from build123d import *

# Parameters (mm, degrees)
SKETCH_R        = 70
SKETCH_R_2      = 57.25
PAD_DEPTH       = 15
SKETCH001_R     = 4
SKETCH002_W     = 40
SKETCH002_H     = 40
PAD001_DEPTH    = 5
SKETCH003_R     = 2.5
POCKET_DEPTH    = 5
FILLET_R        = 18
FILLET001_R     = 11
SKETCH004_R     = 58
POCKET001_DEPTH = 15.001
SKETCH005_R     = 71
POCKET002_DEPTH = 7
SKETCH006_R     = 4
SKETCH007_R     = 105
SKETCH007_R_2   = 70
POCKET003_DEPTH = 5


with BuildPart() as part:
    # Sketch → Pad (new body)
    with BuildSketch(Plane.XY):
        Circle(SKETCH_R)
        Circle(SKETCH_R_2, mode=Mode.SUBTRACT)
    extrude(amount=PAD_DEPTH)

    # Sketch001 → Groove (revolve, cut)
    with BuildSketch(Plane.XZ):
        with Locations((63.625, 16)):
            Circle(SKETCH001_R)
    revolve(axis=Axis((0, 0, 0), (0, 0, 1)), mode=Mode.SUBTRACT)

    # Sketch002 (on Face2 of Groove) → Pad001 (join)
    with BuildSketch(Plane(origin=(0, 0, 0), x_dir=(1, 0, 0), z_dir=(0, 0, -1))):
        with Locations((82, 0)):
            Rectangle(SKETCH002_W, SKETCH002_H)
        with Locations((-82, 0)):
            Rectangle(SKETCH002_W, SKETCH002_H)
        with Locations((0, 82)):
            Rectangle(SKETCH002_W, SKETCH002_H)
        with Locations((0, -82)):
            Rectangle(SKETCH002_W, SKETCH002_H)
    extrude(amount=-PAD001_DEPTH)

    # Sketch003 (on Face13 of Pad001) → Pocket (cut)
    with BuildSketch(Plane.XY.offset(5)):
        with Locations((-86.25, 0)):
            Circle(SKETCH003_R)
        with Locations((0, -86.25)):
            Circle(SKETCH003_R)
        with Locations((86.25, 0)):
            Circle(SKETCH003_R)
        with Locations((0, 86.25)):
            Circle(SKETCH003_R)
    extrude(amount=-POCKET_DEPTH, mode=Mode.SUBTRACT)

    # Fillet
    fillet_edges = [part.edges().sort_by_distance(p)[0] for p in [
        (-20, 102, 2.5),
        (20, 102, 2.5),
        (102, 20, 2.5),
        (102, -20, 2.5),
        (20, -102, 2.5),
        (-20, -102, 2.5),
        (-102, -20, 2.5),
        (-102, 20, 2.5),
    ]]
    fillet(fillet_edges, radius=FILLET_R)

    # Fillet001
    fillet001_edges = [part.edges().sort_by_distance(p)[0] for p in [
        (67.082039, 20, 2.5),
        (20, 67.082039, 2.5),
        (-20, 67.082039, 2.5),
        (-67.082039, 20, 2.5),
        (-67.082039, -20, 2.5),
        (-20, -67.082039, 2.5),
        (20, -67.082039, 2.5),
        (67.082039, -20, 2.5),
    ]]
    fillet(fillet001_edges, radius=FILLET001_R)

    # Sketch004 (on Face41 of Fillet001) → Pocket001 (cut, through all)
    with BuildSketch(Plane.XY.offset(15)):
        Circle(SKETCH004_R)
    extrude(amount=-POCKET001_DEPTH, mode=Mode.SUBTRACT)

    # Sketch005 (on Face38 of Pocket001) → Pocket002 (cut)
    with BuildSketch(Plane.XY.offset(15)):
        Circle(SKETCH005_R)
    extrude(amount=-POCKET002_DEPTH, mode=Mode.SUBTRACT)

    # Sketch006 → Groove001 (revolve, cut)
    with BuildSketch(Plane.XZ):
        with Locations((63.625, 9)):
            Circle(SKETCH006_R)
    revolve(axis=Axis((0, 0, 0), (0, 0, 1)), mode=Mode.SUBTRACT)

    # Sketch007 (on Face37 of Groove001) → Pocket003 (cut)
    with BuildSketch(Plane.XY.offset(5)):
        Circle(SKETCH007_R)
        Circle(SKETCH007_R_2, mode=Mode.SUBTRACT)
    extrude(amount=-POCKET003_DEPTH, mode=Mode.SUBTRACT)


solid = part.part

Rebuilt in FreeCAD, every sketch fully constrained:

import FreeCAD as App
import Part
import Sketcher
from FreeCAD import Vector
Q = App.Units.Quantity


def edges_at(feature, points):
    """Names of the edges that pass closest to the given points."""
    edges = feature.Shape.Edges
    near = lambda p: min(range(len(edges)), key=lambda i: edges[i].distToShape(Part.Vertex(*p))[0])
    return sorted({f"Edge{near(p) + 1}" for p in points})

doc = App.newDocument("Part")
body = doc.addObject("PartDesign::Body", "Body")

sketch1 = body.newObject("Sketcher::SketchObject", "Sketch")
sketch1.AttachmentSupport = (doc.getObject("XY_Plane"), [""])
sketch1.MapMode = "FlatFace"
sketch1.addGeometry([
    Part.Circle(Vector(0, 0, 0), Vector(0, 0, 1), 70),
    Part.Circle(Vector(0, 0, 0), Vector(0, 0, 1), 57.25),
], False)
sketch1.addConstraint([
    Sketcher.Constraint("Coincident", 0, 3, -1, 1),
    Sketcher.Constraint("Coincident", 1, 3, -1, 1),
    Sketcher.Constraint("Diameter", 0, Q("140 mm")),
    Sketcher.Constraint("Diameter", 1, Q("114.5 mm")),
])
pad1 = body.newObject("PartDesign::Pad", "Pad")
pad1.Profile = sketch1
pad1.Length = 15

sketch2 = body.newObject("Sketcher::SketchObject", "Sketch001")
sketch2.AttachmentSupport = (doc.getObject("XZ_Plane"), [""])
sketch2.MapMode = "FlatFace"
sketch2.addGeometry(Part.Circle(Vector(63.625, 16, 0), Vector(0, 0, 1), 4), False)
sketch2.addConstraint([
    Sketcher.Constraint("Diameter", 0, Q("8 mm")),
    Sketcher.Constraint("DistanceY", -1, 1, 0, 3, Q("16 mm")),
    Sketcher.Constraint("DistanceX", -1, 1, 0, 3, Q("63.625 mm")),
])
groove = body.newObject("PartDesign::Groove", "Groove")
groove.Profile = sketch2
groove.ReferenceAxis = (sketch2, ["V_Axis"])
groove.Angle = 360

sketch3 = body.newObject("Sketcher::SketchObject", "Sketch002")
sketch3.AttachmentSupport = (doc.getObject("XY_Plane"), [""])
sketch3.MapMode = "FlatFace"
sketch3.addGeometry([
    Part.LineSegment(Vector(62, -20, 0), Vector(62, 20, 0)),
    Part.LineSegment(Vector(62, 20, 0), Vector(102, 20, 0)),
    Part.LineSegment(Vector(102, 20, 0), Vector(102, -20, 0)),
    Part.LineSegment(Vector(102, -20, 0), Vector(62, -20, 0)),
    Part.LineSegment(Vector(-102, -20, 0), Vector(-102, 20, 0)),
    Part.LineSegment(Vector(-102, 20, 0), Vector(-62, 20, 0)),
    Part.LineSegment(Vector(-62, 20, 0), Vector(-62, -20, 0)),
    Part.LineSegment(Vector(-62, -20, 0), Vector(-102, -20, 0)),
    Part.LineSegment(Vector(-20, -102, 0), Vector(-20, -62, 0)),
    Part.LineSegment(Vector(-20, -62, 0), Vector(20, -62, 0)),
    Part.LineSegment(Vector(20, -62, 0), Vector(20, -102, 0)),
    Part.LineSegment(Vector(20, -102, 0), Vector(-20, -102, 0)),
    Part.LineSegment(Vector(-20, 62, 0), Vector(-20, 102, 0)),
    Part.LineSegment(Vector(-20, 102, 0), Vector(20, 102, 0)),
    Part.LineSegment(Vector(20, 102, 0), Vector(20, 62, 0)),
    Part.LineSegment(Vector(20, 62, 0), Vector(-20, 62, 0)),
], False)
sketch3.addConstraint([
    Sketcher.Constraint("Coincident", 0, 2, 1, 1),
    Sketcher.Constraint("Coincident", 1, 2, 2, 1),
    Sketcher.Constraint("Coincident", 2, 2, 3, 1),
    Sketcher.Constraint("Coincident", 3, 2, 0, 1),
    Sketcher.Constraint("Coincident", 4, 2, 5, 1),
    Sketcher.Constraint("Coincident", 5, 2, 6, 1),
    Sketcher.Constraint("Coincident", 6, 2, 7, 1),
    Sketcher.Constraint("Coincident", 7, 2, 4, 1),
    Sketcher.Constraint("Coincident", 8, 2, 9, 1),
    Sketcher.Constraint("Coincident", 9, 2, 10, 1),
    Sketcher.Constraint("Coincident", 10, 2, 11, 1),
    Sketcher.Constraint("Coincident", 11, 2, 8, 1),
    Sketcher.Constraint("Coincident", 12, 2, 13, 1),
    Sketcher.Constraint("Coincident", 13, 2, 14, 1),
    Sketcher.Constraint("Coincident", 14, 2, 15, 1),
    Sketcher.Constraint("Coincident", 15, 2, 12, 1),
    Sketcher.Constraint("Vertical", 0),
    Sketcher.Constraint("Horizontal", 1),
    Sketcher.Constraint("Vertical", 2),
    Sketcher.Constraint("Horizontal", 3),
    Sketcher.Constraint("Vertical", 4),
    Sketcher.Constraint("Horizontal", 5),
    Sketcher.Constraint("Vertical", 6),
    Sketcher.Constraint("Horizontal", 7),
    Sketcher.Constraint("Vertical", 8),
    Sketcher.Constraint("Horizontal", 9),
    Sketcher.Constraint("Vertical", 10),
    Sketcher.Constraint("Horizontal", 11),
    Sketcher.Constraint("Vertical", 12),
    Sketcher.Constraint("Horizontal", 13),
    Sketcher.Constraint("Vertical", 14),
    Sketcher.Constraint("Horizontal", 15),
    Sketcher.Constraint("Symmetric", 2, 2, 4, 2, -1, 1),
    Sketcher.Constraint("Symmetric", 0, 2, 6, 2, -1, 1),
    Sketcher.Constraint("Symmetric", 10, 2, 12, 2, -1, 1),
    Sketcher.Constraint("Symmetric", 8, 2, 14, 2, -1, 1),
    Sketcher.Constraint("Horizontal", 1, 2, 4, 2),
    Sketcher.Constraint("Vertical", 11, 2, 12, 2),
    Sketcher.Constraint("Equal", 7, 9),
    Sketcher.Constraint("Equal", 15, 0),
    Sketcher.Constraint("Equal", 6, 8),
    Sketcher.Constraint("DistanceX", 1, 1, 1, 2, Q("40 mm")),
    Sketcher.Constraint("DistanceX", -1, 1, 0, 2, Q("62 mm")),
    Sketcher.Constraint("DistanceY", 8, 2, -1, 1, Q("62 mm")),
])
pad2 = body.newObject("PartDesign::Pad", "Pad001")
pad2.Profile = sketch3
pad2.Length = 5

sketch4 = body.newObject("Sketcher::SketchObject", "Sketch003")
sketch4.AttachmentSupport = (doc.getObject("XY_Plane"), [""])
sketch4.MapMode = "FlatFace"
sketch4.AttachmentOffset = App.Placement(Vector(0, 0, 5), App.Rotation())
sketch4.addGeometry([
    Part.Circle(Vector(-86.25, 0, 0), Vector(0, 0, 1), 2.5),
    Part.Circle(Vector(0, -86.25, 0), Vector(0, 0, 1), 2.5),
    Part.Circle(Vector(86.25, 0, 0), Vector(0, 0, 1), 2.5),
    Part.Circle(Vector(0, 86.25, 0), Vector(0, 0, 1), 2.5),
], False)
sketch4.addConstraint([
    Sketcher.Constraint("Equal", 0, 1),
    Sketcher.Constraint("Equal", 1, 2),
    Sketcher.Constraint("Equal", 2, 3),
    Sketcher.Constraint("Symmetric", 0, 3, 2, 3, -1, 1),
    Sketcher.Constraint("Symmetric", 1, 3, 3, 3, -1, 1),
    Sketcher.Constraint("PointOnObject", 0, 3, -1),
    Sketcher.Constraint("PointOnObject", 1, 3, -2),
    Sketcher.Constraint("Diameter", 0, Q("5 mm")),
    Sketcher.Constraint("DistanceX", 0, 3, 2, 3, Q("172.5 mm")),
    Sketcher.Constraint("DistanceY", 1, 3, 3, 3, Q("172.5 mm")),
])
pocket1 = body.newObject("PartDesign::Pocket", "Pocket")
pocket1.Profile = sketch4
pocket1.Length = 5
doc.recompute()

fillet = body.newObject("PartDesign::Fillet", "Fillet")
fillet.Base = (pocket1, edges_at(pocket1, [
    (-20, 102, 2.5),
    (20, 102, 2.5),
    (102, 20, 2.5),
    (102, -20, 2.5),
    (20, -102, 2.5),
    (-20, -102, 2.5),
    (-102, -20, 2.5),
    (-102, 20, 2.5),
]))
fillet.Radius = 18
doc.recompute()

fillet2 = body.newObject("PartDesign::Fillet", "Fillet001")
fillet2.Base = (fillet, edges_at(fillet, [
    (67.082, 20, 2.5),
    (20, 67.082, 2.5),
    (-20, 67.082, 2.5),
    (-67.082, 20, 2.5),
    (-67.082, -20, 2.5),
    (-20, -67.082, 2.5),
    (20, -67.082, 2.5),
    (67.082, -20, 2.5),
]))
fillet2.Radius = 11

sketch5 = body.newObject("Sketcher::SketchObject", "Sketch004")
sketch5.AttachmentSupport = (doc.getObject("XY_Plane"), [""])
sketch5.MapMode = "FlatFace"
sketch5.AttachmentOffset = App.Placement(Vector(0, 0, 15), App.Rotation())
sketch5.addGeometry(Part.Circle(Vector(0, 0, 0), Vector(0, 0, 1), 58), False)
sketch5.addConstraint([
    Sketcher.Constraint("Coincident", 0, 3, -1, 1),
    Sketcher.Constraint("Diameter", 0, Q("116 mm")),
])
pocket2 = body.newObject("PartDesign::Pocket", "Pocket001")
pocket2.Profile = sketch5
pocket2.Type = "ThroughAll"

sketch6 = body.newObject("Sketcher::SketchObject", "Sketch005")
sketch6.AttachmentSupport = (doc.getObject("XY_Plane"), [""])
sketch6.MapMode = "FlatFace"
sketch6.AttachmentOffset = App.Placement(Vector(0, 0, 15), App.Rotation())
sketch6.addGeometry(Part.Circle(Vector(0, 0, 0), Vector(0, 0, 1), 71), False)
sketch6.addConstraint([
    Sketcher.Constraint("Coincident", 0, 3, -1, 1),
    Sketcher.Constraint("Diameter", 0, Q("142 mm")),
])
pocket3 = body.newObject("PartDesign::Pocket", "Pocket002")
pocket3.Profile = sketch6
pocket3.Length = 7

sketch7 = body.newObject("Sketcher::SketchObject", "Sketch006")
sketch7.AttachmentSupport = (doc.getObject("XZ_Plane"), [""])
sketch7.MapMode = "FlatFace"
sketch7.addGeometry(Part.Circle(Vector(63.625, 9, 0), Vector(0, 0, 1), 4), False)
sketch7.addConstraint([
    Sketcher.Constraint("Diameter", 0, Q("8 mm")),
    Sketcher.Constraint("DistanceY", -1, 1, 0, 3, Q("9 mm")),
    Sketcher.Constraint("DistanceX", -1, 1, 0, 3, Q("63.625 mm")),
])
groove2 = body.newObject("PartDesign::Groove", "Groove001")
groove2.Profile = sketch7
groove2.ReferenceAxis = (sketch7, ["V_Axis"])
groove2.Angle = 360

sketch8 = body.newObject("Sketcher::SketchObject", "Sketch007")
sketch8.AttachmentSupport = (doc.getObject("XY_Plane"), [""])
sketch8.MapMode = "FlatFace"
sketch8.AttachmentOffset = App.Placement(Vector(0, 0, 5), App.Rotation())
sketch8.addGeometry([
    Part.Circle(Vector(0, 0, 0), Vector(0, 0, 1), 105),
    Part.Circle(Vector(0, 0, 0), Vector(0, 0, 1), 70),
], False)
sketch8.addConstraint([
    Sketcher.Constraint("Coincident", 0, 3, -1, 1),
    Sketcher.Constraint("Coincident", 1, 3, -1, 1),
    Sketcher.Constraint("Diameter", 0, Q("210 mm")),
    Sketcher.Constraint("Diameter", 1, Q("140 mm")),
])
pocket4 = body.newObject("PartDesign::Pocket", "Pocket003")
pocket4.Profile = sketch8
pocket4.Length = 5

doc.recompute()
